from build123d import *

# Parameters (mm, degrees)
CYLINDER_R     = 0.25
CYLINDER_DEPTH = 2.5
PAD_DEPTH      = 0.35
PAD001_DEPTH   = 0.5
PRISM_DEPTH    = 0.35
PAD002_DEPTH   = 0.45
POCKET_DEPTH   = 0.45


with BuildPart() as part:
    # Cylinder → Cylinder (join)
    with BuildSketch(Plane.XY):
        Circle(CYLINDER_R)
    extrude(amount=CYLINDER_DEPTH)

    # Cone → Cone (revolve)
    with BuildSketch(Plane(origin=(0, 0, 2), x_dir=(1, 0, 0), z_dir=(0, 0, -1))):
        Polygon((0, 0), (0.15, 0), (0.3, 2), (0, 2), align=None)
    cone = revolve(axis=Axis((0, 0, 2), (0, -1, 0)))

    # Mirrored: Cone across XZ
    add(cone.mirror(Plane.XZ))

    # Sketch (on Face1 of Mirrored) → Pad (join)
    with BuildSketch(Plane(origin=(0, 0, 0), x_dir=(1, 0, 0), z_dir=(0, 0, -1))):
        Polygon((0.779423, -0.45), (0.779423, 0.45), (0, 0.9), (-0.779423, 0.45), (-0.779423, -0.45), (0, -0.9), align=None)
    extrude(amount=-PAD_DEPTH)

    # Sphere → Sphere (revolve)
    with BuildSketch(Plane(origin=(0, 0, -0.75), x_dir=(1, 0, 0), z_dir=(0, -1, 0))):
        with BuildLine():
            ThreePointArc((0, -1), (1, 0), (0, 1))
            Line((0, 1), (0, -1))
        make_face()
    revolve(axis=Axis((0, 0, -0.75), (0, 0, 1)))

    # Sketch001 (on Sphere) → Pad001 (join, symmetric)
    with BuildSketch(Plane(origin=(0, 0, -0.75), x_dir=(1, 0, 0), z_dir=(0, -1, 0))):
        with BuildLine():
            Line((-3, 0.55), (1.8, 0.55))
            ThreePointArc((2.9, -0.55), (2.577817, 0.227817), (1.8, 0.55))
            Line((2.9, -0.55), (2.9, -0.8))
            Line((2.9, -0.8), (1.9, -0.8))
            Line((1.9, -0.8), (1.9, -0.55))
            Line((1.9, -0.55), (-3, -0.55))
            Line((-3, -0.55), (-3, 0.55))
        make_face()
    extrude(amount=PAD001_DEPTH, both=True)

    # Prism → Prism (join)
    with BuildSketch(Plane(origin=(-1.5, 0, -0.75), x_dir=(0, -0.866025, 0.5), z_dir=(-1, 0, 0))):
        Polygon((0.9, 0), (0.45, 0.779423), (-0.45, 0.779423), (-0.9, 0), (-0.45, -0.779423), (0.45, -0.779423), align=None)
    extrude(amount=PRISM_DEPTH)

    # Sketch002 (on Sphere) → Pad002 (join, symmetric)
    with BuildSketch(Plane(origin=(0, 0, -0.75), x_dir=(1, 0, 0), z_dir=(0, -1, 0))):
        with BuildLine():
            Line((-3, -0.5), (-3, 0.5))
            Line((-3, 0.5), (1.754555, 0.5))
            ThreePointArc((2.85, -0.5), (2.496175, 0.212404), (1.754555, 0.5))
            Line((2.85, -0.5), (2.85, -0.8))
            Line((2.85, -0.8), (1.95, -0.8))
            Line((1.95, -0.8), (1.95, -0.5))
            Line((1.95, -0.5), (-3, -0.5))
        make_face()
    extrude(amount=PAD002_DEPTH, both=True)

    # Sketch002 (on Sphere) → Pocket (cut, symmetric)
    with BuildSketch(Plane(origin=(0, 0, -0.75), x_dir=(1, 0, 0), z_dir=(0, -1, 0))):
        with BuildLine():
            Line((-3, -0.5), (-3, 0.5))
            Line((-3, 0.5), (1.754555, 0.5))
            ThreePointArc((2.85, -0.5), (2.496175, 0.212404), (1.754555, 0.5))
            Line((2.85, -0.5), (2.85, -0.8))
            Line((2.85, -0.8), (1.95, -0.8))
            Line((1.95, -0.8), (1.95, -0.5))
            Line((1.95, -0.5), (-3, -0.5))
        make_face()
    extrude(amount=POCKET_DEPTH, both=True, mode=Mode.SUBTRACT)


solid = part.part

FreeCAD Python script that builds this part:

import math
import FreeCAD as App
import Part
import Sketcher
from FreeCAD import Vector
Q = App.Units.Quantity

doc = App.newDocument("Part")
body = doc.addObject("PartDesign::Body", "Body")

# Sketch on XY plane
sketch1 = body.newObject("Sketcher::SketchObject", "Sketch")
sketch1.AttachmentSupport = (doc.getObject("XY_Plane"), [""])
sketch1.MapMode = "FlatFace"
sketch1.addGeometry(Part.Circle(Vector(0, 0, 0), Vector(0, 0, 1), 0.25), False)
sketch1.addConstraint([
    Sketcher.Constraint("Coincident", 0, 3, -1, 1),
    Sketcher.Constraint("Diameter", 0, 0.5),
])
pad1 = body.newObject("PartDesign::Pad", "Pad")
pad1.Profile = sketch1
pad1.Length = 2.5

# Sketch on XY plane
sketch2 = body.newObject("Sketcher::SketchObject", "Sketch001")
sketch2.AttachmentSupport = (doc.getObject("XY_Plane"), [""])
sketch2.MapMode = "FlatFace"
sketch2.AttachmentOffset = App.Placement(Vector(0, 0, 2), App.Rotation())
sketch2.addGeometry([
    Part.LineSegment(Vector(0, 0, 0), Vector(0.15, 0, 0)),
    Part.LineSegment(Vector(0.15, 0, 0), Vector(0.3, -2, 0)),
    Part.LineSegment(Vector(0.3, -2, 0), Vector(0, -2, 0)),
    Part.LineSegment(Vector(0, -2, 0), Vector(0, 0, 0)),
], False)
sketch2.addConstraint([
    Sketcher.Constraint("Coincident", 0, 2, 1, 1),
    Sketcher.Constraint("Coincident", 1, 2, 2, 1),
    Sketcher.Constraint("Coincident", 2, 2, 3, 1),
    Sketcher.Constraint("Coincident", 3, 2, 0, 1),
    Sketcher.Constraint("Horizontal", 0),
    Sketcher.Constraint("Horizontal", 2),
    Sketcher.Constraint("Vertical", 3),
    Sketcher.Constraint("Coincident", 3, 2, -1, 1),
    Sketcher.Constraint("DistanceY", 3, 1, 3, 2, 2.0),
    Sketcher.Constraint("DistanceX", 2, 2, 2, 1, 0.3),
    Sketcher.Constraint("DistanceX", 0, 1, 0, 2, 0.15),
])
revolution = body.newObject("PartDesign::Revolution", "Revolution")
revolution.Profile = sketch2
revolution.ReferenceAxis = (sketch2, ["V_Axis"])
revolution.Angle = 360
doc.recompute()

mirrored = body.newObject("PartDesign::Mirrored", "Mirrored")
mirrored.Originals = [revolution]
mirrored.MirrorPlane = (doc.getObject("XZ_Plane"), [""])
body.Tip = mirrored

# Sketch on XY plane
sketch3 = body.newObject("Sketcher::SketchObject", "Sketch002")
sketch3.AttachmentSupport = (doc.getObject("XY_Plane"), [""])
sketch3.MapMode = "FlatFace"
sketch3.addGeometry([
    Part.LineSegment(Vector(0.8, 0.5, 0), Vector(0.8, -0.5, 0)),  # 0
    Part.LineSegment(Vector(0.8, -0.5, 0), Vector(0, -0.9, 0)),  # 1
    Part.LineSegment(Vector(0, -0.9, 0), Vector(-0.8, -0.5, 0)),  # 2
    Part.LineSegment(Vector(-0.8, -0.5, 0), Vector(-0.8, 0.5, 0)),  # 3
    Part.LineSegment(Vector(-0.8, 0.5, 0), Vector(0, 0.9, 0)),  # 4
    Part.LineSegment(Vector(0, 0.9, 0), Vector(0.8, 0.5, 0)),  # 5
], False)
sketch3.addConstraint([
    Sketcher.Constraint("Coincident", 0, 2, 1, 1),
    Sketcher.Constraint("Coincident", 1, 2, 2, 1),
    Sketcher.Constraint("Coincident", 2, 2, 3, 1),
    Sketcher.Constraint("Coincident", 3, 2, 4, 1),
    Sketcher.Constraint("Coincident", 4, 2, 5, 1),
    Sketcher.Constraint("Coincident", 5, 2, 0, 1),
    Sketcher.Constraint("Vertical", 0),
    Sketcher.Constraint("Vertical", 3),
    Sketcher.Constraint("Symmetric", 0, 2, 3, 2, -1, 1),
    Sketcher.Constraint("Symmetric", 1, 2, 4, 2, -1, 1),
    Sketcher.Constraint("PointOnObject", 1, 2, -2),
    Sketcher.Constraint("Parallel", 2, 5),
    Sketcher.Constraint("Horizontal", 0, 2, 2, 2),
    Sketcher.Constraint("Angle", 1, Q("-150.000004 deg")),
    Sketcher.Constraint("DistanceY", 0, 2, 0, 1, 0.9),
    Sketcher.Constraint("Distance", 1, 0.9),
])
pad2 = body.newObject("PartDesign::Pad", "Pad001")
pad2.Profile = sketch3
pad2.Length = 0.35

# Sketch on XZ plane
sketch4 = body.newObject("Sketcher::SketchObject", "Sketch003")
sketch4.AttachmentSupport = (doc.getObject("XZ_Plane"), [""])
sketch4.MapMode = "FlatFace"
sketch4.addGeometry([
    Part.ArcOfCircle(Part.Circle(Vector(0, -0.8, 0), Vector(0, 0, 1), 1), math.radians(-90), math.radians(90)),
    Part.LineSegment(Vector(0, 0.2, 0), Vector(0, -1.8, 0)),
], False)
sketch4.addConstraint([
    Sketcher.Constraint("Coincident", 0, 1, 1, 2),
    Sketcher.Constraint("Coincident", 1, 1, 0, 2),
    Sketcher.Constraint("Vertical", 1),
    Sketcher.Constraint("PointOnObject", 0, 3, -2),
    Sketcher.Constraint("PointOnObject", 0, 1, -2),
    Sketcher.Constraint("Radius", 0, 1.0),
    Sketcher.Constraint("DistanceY", 0, 3, -1, 1, 0.75),
])
revolution2 = body.newObject("PartDesign::Revolution", "Revolution001")
revolution2.Profile = sketch4
revolution2.ReferenceAxis = (sketch4, ["V_Axis"])
revolution2.Angle = 360

# Sketch on XZ plane
sketch5 = body.newObject("Sketcher::SketchObject", "Sketch004")
sketch5.AttachmentSupport = (doc.getObject("XZ_Plane"), [""])
sketch5.MapMode = "FlatFace"
sketch5.addGeometry([
    Part.LineSegment(Vector(1.8, -0.2, 0), Vector(-3, -0.2, 0)),  # 0
    Part.LineSegment(Vector(-3, -0.2, 0), Vector(-3, -1.3, 0)),  # 1
    Part.LineSegment(Vector(-3, -1.3, 0), Vector(1.9, -1.3, 0)),  # 2
    Part.LineSegment(Vector(1.9, -1.3, 0), Vector(1.9, -1.55, 0)),  # 3
    Part.LineSegment(Vector(1.9, -1.55, 0), Vector(2.9, -1.55, 0)),  # 4
    Part.LineSegment(Vector(2.9, -1.55, 0), Vector(2.9, -1.3, 0)),  # 5
    Part.ArcOfCircle(Part.Circle(Vector(1.8, -1.3, 0), Vector(0, 0, 1), 1.1), math.radians(0), math.radians(90)),  # 6
], False)
sketch5.addConstraint([
    Sketcher.Constraint("Coincident", 0, 2, 1, 1),
    Sketcher.Constraint("Coincident", 1, 2, 2, 1),
    Sketcher.Constraint("Coincident", 2, 2, 3, 1),
    Sketcher.Constraint("Coincident", 3, 2, 4, 1),
    Sketcher.Constraint("Coincident", 4, 2, 5, 1),
    Sketcher.Constraint("Tangent", 5, 2, 6, 1),
    Sketcher.Constraint("Tangent", 6, 2, 0, 1),
    Sketcher.Constraint("Horizontal", 0),
    Sketcher.Constraint("Vertical", 1),
    Sketcher.Constraint("Horizontal", 2),
    Sketcher.Constraint("Vertical", 3),
    Sketcher.Constraint("Horizontal", 4),
    Sketcher.Constraint("Vertical", 5),
    Sketcher.Constraint("Horizontal", 6, 3, 1, 2),
    Sketcher.Constraint("Radius", 6, 1.100002),
    Sketcher.Constraint("DistanceX", 4, 1, 4, 2, 1.0),
    Sketcher.Constraint("DistanceX", 0, 2, 0, 1, 4.8),
    Sketcher.Constraint("DistanceX", 0, 2, -1, 1, 3.0),
    Sketcher.Constraint("DistanceY", 3, 2, 3, 1, 0.25),
    Sketcher.Constraint("DistanceY", 6, 3, -1, 1, 1.300002),
])
pad3 = body.newObject("PartDesign::Pad", "Pad002")
pad3.Profile = sketch5
pad3.Length = 1
pad3.Midplane = True

# Sketch on YZ plane
sketch6 = body.newObject("Sketcher::SketchObject", "Sketch005")
sketch6.AttachmentSupport = (doc.getObject("YZ_Plane"), [""])
sketch6.MapMode = "FlatFace"
sketch6.AttachmentOffset = App.Placement(Vector(0, 0, -1.5), App.Rotation())
sketch6.addGeometry([
    Part.LineSegment(Vector(-0.8, -0.3, 0), Vector(0, 0.2, 0)),  # 0
    Part.LineSegment(Vector(0, 0.2, 0), Vector(0.8, -0.3, 0)),  # 1
    Part.LineSegment(Vector(0.8, -0.3, 0), Vector(0.8, -1.2, 0)),  # 2
    Part.LineSegment(Vector(0.8, -1.2, 0), Vector(0, -1.7, 0)),  # 3
    Part.LineSegment(Vector(0, -1.7, 0), Vector(-0.8, -1.2, 0)),  # 4
    Part.LineSegment(Vector(-0.8, -1.2, 0), Vector(-0.8, -0.3, 0)),  # 5
], False)
sketch6.addConstraint([
    Sketcher.Constraint("Coincident", 0, 2, 1, 1),
    Sketcher.Constraint("Coincident", 1, 2, 2, 1),
    Sketcher.Constraint("Coincident", 2, 2, 3, 1),
    Sketcher.Constraint("Coincident", 3, 2, 4, 1),
    Sketcher.Constraint("Coincident", 4, 2, 5, 1),
    Sketcher.Constraint("Coincident", 5, 2, 0, 1),
    Sketcher.Constraint("Vertical", 2),
    Sketcher.Constraint("Vertical", 5),
    Sketcher.Constraint("Symmetric", 2, 2, 4, 2, -2),
    Sketcher.Constraint("PointOnObject", 0, 2, -2),
    Sketcher.Constraint("PointOnObject", 3, 2, -2),
    Sketcher.Constraint("Parallel", 0, 3),
    Sketcher.Constraint("Parallel", 1, 4),
    Sketcher.Constraint("Angle", 0, Q("29.999993 deg")),
    Sketcher.Constraint("DistanceY", 2, 2, 2, 1, 0.9),
    Sketcher.Constraint("Distance", 0, 0.9),
    Sketcher.Constraint("DistanceY", 1, 2, -1, 1, 0.3),
])
pad4 = body.newObject("PartDesign::Pad", "Pad003")
pad4.Profile = sketch6
pad4.Length = 0.35
pad4.Reversed = True

# Sketch on XZ plane
sketch7 = body.newObject("Sketcher::SketchObject", "Sketch006")
sketch7.AttachmentSupport = (doc.getObject("XZ_Plane"), [""])
sketch7.MapMode = "FlatFace"
sketch7.addGeometry([
    Part.LineSegment(Vector(-3, -0.25, 0), Vector(-3, -1.25, 0)),  # 0
    Part.LineSegment(Vector(-3, -1.25, 0), Vector(1.95, -1.25, 0)),  # 1
    Part.LineSegment(Vector(1.95, -1.25, 0), Vector(1.95, -1.55, 0)),  # 2
    Part.LineSegment(Vector(1.95, -1.55, 0), Vector(2.85, -1.55, 0)),  # 3
    Part.LineSegment(Vector(2.85, -1.55, 0), Vector(2.85, -1.25, 0)),  # 4
    Part.ArcOfCircle(Part.Circle(Vector(1.75, -1.35, 0), Vector(0, 0, 1), 1.1), math.radians(5), math.radians(90)),  # 5
    Part.LineSegment(Vector(1.75, -0.25, 0), Vector(-3, -0.25, 0)),  # 6
], False)
sketch7.addConstraint([
    Sketcher.Constraint("Coincident", 0, 2, 1, 1),
    Sketcher.Constraint("Coincident", 1, 2, 2, 1),
    Sketcher.Constraint("Coincident", 2, 2, 3, 1),
    Sketcher.Constraint("Coincident", 3, 2, 4, 1),
    Sketcher.Constraint("Coincident", 4, 2, 5, 1),
    Sketcher.Constraint("Tangent", 5, 2, 6, 1),
    Sketcher.Constraint("Coincident", 6, 2, 0, 1),
    Sketcher.Constraint("Vertical", 0),
    Sketcher.Constraint("Horizontal", 1),
    Sketcher.Constraint("Vertical", 2),
    Sketcher.Constraint("Horizontal", 3),
    Sketcher.Constraint("Vertical", 4),
    Sketcher.Constraint("Horizontal", 6),
    Sketcher.Constraint("Horizontal", 1, 2, 4, 2),
    Sketcher.Constraint("Radius", 5, 1.099999),
    Sketcher.Constraint("DistanceY", 0, 2, 0, 1, 1.0),
    Sketcher.Constraint("DistanceX", 3, 1, 3, 2, 0.9),
    Sketcher.Constraint("DistanceY", 2, 2, 2, 1, 0.3),
    Sketcher.Constraint("DistanceX", 0, 2, -1, 1, 3.0),
    Sketcher.Constraint("DistanceX", 1, 1, 1, 2, 4.95),
    Sketcher.Constraint("DistanceY", 5, 3, -1, 1, 1.349999),
])
pad5 = body.newObject("PartDesign::Pad", "Pad004")
pad5.Profile = sketch7
pad5.Length = 0.9
pad5.Midplane = True

# Sketch on XZ plane
sketch8 = body.newObject("Sketcher::SketchObject", "Sketch007")
sketch8.AttachmentSupport = (doc.getObject("XZ_Plane"), [""])
sketch8.MapMode = "FlatFace"
sketch8.addGeometry([
    Part.LineSegment(Vector(-3, -0.25, 0), Vector(-3, -1.25, 0)),  # 0
    Part.LineSegment(Vector(-3, -1.25, 0), Vector(1.95, -1.25, 0)),  # 1
    Part.LineSegment(Vector(1.95, -1.25, 0), Vector(1.95, -1.55, 0)),  # 2
    Part.LineSegment(Vector(1.95, -1.55, 0), Vector(2.85, -1.55, 0)),  # 3
    Part.LineSegment(Vector(2.85, -1.55, 0), Vector(2.85, -1.25, 0)),  # 4
    Part.ArcOfCircle(Part.Circle(Vector(1.75, -1.35, 0), Vector(0, 0, 1), 1.1), math.radians(5), math.radians(90)),  # 5
    Part.LineSegment(Vector(1.75, -0.25, 0), Vector(-3, -0.25, 0)),  # 6
], False)
sketch8.addConstraint([
    Sketcher.Constraint("Coincident", 0, 2, 1, 1),
    Sketcher.Constraint("Coincident", 1, 2, 2, 1),
    Sketcher.Constraint("Coincident", 2, 2, 3, 1),
    Sketcher.Constraint("Coincident", 3, 2, 4, 1),
    Sketcher.Constraint("Coincident", 4, 2, 5, 1),
    Sketcher.Constraint("Tangent", 5, 2, 6, 1),
    Sketcher.Constraint("Coincident", 6, 2, 0, 1),
    Sketcher.Constraint("Vertical", 0),
    Sketcher.Constraint("Horizontal", 1),
    Sketcher.Constraint("Vertical", 2),
    Sketcher.Constraint("Horizontal", 3),
    Sketcher.Constraint("Vertical", 4),
    Sketcher.Constraint("Horizontal", 6),
    Sketcher.Constraint("Horizontal", 1, 2, 4, 2),
    Sketcher.Constraint("Radius", 5, 1.099999),
    Sketcher.Constraint("DistanceY", 0, 2, 0, 1, 1.0),
    Sketcher.Constraint("DistanceX", 3, 1, 3, 2, 0.9),
    Sketcher.Constraint("DistanceY", 2, 2, 2, 1, 0.3),
    Sketcher.Constraint("DistanceX", 0, 2, -1, 1, 3.0),
    Sketcher.Constraint("DistanceX", 1, 1, 1, 2, 4.95),
    Sketcher.Constraint("DistanceY", 5, 3, -1, 1, 1.349999),
])
pocket1 = body.newObject("PartDesign::Pocket", "Pocket")
pocket1.Profile = sketch8
pocket1.Length = 0.9
pocket1.Midplane = True

doc.recompute()
